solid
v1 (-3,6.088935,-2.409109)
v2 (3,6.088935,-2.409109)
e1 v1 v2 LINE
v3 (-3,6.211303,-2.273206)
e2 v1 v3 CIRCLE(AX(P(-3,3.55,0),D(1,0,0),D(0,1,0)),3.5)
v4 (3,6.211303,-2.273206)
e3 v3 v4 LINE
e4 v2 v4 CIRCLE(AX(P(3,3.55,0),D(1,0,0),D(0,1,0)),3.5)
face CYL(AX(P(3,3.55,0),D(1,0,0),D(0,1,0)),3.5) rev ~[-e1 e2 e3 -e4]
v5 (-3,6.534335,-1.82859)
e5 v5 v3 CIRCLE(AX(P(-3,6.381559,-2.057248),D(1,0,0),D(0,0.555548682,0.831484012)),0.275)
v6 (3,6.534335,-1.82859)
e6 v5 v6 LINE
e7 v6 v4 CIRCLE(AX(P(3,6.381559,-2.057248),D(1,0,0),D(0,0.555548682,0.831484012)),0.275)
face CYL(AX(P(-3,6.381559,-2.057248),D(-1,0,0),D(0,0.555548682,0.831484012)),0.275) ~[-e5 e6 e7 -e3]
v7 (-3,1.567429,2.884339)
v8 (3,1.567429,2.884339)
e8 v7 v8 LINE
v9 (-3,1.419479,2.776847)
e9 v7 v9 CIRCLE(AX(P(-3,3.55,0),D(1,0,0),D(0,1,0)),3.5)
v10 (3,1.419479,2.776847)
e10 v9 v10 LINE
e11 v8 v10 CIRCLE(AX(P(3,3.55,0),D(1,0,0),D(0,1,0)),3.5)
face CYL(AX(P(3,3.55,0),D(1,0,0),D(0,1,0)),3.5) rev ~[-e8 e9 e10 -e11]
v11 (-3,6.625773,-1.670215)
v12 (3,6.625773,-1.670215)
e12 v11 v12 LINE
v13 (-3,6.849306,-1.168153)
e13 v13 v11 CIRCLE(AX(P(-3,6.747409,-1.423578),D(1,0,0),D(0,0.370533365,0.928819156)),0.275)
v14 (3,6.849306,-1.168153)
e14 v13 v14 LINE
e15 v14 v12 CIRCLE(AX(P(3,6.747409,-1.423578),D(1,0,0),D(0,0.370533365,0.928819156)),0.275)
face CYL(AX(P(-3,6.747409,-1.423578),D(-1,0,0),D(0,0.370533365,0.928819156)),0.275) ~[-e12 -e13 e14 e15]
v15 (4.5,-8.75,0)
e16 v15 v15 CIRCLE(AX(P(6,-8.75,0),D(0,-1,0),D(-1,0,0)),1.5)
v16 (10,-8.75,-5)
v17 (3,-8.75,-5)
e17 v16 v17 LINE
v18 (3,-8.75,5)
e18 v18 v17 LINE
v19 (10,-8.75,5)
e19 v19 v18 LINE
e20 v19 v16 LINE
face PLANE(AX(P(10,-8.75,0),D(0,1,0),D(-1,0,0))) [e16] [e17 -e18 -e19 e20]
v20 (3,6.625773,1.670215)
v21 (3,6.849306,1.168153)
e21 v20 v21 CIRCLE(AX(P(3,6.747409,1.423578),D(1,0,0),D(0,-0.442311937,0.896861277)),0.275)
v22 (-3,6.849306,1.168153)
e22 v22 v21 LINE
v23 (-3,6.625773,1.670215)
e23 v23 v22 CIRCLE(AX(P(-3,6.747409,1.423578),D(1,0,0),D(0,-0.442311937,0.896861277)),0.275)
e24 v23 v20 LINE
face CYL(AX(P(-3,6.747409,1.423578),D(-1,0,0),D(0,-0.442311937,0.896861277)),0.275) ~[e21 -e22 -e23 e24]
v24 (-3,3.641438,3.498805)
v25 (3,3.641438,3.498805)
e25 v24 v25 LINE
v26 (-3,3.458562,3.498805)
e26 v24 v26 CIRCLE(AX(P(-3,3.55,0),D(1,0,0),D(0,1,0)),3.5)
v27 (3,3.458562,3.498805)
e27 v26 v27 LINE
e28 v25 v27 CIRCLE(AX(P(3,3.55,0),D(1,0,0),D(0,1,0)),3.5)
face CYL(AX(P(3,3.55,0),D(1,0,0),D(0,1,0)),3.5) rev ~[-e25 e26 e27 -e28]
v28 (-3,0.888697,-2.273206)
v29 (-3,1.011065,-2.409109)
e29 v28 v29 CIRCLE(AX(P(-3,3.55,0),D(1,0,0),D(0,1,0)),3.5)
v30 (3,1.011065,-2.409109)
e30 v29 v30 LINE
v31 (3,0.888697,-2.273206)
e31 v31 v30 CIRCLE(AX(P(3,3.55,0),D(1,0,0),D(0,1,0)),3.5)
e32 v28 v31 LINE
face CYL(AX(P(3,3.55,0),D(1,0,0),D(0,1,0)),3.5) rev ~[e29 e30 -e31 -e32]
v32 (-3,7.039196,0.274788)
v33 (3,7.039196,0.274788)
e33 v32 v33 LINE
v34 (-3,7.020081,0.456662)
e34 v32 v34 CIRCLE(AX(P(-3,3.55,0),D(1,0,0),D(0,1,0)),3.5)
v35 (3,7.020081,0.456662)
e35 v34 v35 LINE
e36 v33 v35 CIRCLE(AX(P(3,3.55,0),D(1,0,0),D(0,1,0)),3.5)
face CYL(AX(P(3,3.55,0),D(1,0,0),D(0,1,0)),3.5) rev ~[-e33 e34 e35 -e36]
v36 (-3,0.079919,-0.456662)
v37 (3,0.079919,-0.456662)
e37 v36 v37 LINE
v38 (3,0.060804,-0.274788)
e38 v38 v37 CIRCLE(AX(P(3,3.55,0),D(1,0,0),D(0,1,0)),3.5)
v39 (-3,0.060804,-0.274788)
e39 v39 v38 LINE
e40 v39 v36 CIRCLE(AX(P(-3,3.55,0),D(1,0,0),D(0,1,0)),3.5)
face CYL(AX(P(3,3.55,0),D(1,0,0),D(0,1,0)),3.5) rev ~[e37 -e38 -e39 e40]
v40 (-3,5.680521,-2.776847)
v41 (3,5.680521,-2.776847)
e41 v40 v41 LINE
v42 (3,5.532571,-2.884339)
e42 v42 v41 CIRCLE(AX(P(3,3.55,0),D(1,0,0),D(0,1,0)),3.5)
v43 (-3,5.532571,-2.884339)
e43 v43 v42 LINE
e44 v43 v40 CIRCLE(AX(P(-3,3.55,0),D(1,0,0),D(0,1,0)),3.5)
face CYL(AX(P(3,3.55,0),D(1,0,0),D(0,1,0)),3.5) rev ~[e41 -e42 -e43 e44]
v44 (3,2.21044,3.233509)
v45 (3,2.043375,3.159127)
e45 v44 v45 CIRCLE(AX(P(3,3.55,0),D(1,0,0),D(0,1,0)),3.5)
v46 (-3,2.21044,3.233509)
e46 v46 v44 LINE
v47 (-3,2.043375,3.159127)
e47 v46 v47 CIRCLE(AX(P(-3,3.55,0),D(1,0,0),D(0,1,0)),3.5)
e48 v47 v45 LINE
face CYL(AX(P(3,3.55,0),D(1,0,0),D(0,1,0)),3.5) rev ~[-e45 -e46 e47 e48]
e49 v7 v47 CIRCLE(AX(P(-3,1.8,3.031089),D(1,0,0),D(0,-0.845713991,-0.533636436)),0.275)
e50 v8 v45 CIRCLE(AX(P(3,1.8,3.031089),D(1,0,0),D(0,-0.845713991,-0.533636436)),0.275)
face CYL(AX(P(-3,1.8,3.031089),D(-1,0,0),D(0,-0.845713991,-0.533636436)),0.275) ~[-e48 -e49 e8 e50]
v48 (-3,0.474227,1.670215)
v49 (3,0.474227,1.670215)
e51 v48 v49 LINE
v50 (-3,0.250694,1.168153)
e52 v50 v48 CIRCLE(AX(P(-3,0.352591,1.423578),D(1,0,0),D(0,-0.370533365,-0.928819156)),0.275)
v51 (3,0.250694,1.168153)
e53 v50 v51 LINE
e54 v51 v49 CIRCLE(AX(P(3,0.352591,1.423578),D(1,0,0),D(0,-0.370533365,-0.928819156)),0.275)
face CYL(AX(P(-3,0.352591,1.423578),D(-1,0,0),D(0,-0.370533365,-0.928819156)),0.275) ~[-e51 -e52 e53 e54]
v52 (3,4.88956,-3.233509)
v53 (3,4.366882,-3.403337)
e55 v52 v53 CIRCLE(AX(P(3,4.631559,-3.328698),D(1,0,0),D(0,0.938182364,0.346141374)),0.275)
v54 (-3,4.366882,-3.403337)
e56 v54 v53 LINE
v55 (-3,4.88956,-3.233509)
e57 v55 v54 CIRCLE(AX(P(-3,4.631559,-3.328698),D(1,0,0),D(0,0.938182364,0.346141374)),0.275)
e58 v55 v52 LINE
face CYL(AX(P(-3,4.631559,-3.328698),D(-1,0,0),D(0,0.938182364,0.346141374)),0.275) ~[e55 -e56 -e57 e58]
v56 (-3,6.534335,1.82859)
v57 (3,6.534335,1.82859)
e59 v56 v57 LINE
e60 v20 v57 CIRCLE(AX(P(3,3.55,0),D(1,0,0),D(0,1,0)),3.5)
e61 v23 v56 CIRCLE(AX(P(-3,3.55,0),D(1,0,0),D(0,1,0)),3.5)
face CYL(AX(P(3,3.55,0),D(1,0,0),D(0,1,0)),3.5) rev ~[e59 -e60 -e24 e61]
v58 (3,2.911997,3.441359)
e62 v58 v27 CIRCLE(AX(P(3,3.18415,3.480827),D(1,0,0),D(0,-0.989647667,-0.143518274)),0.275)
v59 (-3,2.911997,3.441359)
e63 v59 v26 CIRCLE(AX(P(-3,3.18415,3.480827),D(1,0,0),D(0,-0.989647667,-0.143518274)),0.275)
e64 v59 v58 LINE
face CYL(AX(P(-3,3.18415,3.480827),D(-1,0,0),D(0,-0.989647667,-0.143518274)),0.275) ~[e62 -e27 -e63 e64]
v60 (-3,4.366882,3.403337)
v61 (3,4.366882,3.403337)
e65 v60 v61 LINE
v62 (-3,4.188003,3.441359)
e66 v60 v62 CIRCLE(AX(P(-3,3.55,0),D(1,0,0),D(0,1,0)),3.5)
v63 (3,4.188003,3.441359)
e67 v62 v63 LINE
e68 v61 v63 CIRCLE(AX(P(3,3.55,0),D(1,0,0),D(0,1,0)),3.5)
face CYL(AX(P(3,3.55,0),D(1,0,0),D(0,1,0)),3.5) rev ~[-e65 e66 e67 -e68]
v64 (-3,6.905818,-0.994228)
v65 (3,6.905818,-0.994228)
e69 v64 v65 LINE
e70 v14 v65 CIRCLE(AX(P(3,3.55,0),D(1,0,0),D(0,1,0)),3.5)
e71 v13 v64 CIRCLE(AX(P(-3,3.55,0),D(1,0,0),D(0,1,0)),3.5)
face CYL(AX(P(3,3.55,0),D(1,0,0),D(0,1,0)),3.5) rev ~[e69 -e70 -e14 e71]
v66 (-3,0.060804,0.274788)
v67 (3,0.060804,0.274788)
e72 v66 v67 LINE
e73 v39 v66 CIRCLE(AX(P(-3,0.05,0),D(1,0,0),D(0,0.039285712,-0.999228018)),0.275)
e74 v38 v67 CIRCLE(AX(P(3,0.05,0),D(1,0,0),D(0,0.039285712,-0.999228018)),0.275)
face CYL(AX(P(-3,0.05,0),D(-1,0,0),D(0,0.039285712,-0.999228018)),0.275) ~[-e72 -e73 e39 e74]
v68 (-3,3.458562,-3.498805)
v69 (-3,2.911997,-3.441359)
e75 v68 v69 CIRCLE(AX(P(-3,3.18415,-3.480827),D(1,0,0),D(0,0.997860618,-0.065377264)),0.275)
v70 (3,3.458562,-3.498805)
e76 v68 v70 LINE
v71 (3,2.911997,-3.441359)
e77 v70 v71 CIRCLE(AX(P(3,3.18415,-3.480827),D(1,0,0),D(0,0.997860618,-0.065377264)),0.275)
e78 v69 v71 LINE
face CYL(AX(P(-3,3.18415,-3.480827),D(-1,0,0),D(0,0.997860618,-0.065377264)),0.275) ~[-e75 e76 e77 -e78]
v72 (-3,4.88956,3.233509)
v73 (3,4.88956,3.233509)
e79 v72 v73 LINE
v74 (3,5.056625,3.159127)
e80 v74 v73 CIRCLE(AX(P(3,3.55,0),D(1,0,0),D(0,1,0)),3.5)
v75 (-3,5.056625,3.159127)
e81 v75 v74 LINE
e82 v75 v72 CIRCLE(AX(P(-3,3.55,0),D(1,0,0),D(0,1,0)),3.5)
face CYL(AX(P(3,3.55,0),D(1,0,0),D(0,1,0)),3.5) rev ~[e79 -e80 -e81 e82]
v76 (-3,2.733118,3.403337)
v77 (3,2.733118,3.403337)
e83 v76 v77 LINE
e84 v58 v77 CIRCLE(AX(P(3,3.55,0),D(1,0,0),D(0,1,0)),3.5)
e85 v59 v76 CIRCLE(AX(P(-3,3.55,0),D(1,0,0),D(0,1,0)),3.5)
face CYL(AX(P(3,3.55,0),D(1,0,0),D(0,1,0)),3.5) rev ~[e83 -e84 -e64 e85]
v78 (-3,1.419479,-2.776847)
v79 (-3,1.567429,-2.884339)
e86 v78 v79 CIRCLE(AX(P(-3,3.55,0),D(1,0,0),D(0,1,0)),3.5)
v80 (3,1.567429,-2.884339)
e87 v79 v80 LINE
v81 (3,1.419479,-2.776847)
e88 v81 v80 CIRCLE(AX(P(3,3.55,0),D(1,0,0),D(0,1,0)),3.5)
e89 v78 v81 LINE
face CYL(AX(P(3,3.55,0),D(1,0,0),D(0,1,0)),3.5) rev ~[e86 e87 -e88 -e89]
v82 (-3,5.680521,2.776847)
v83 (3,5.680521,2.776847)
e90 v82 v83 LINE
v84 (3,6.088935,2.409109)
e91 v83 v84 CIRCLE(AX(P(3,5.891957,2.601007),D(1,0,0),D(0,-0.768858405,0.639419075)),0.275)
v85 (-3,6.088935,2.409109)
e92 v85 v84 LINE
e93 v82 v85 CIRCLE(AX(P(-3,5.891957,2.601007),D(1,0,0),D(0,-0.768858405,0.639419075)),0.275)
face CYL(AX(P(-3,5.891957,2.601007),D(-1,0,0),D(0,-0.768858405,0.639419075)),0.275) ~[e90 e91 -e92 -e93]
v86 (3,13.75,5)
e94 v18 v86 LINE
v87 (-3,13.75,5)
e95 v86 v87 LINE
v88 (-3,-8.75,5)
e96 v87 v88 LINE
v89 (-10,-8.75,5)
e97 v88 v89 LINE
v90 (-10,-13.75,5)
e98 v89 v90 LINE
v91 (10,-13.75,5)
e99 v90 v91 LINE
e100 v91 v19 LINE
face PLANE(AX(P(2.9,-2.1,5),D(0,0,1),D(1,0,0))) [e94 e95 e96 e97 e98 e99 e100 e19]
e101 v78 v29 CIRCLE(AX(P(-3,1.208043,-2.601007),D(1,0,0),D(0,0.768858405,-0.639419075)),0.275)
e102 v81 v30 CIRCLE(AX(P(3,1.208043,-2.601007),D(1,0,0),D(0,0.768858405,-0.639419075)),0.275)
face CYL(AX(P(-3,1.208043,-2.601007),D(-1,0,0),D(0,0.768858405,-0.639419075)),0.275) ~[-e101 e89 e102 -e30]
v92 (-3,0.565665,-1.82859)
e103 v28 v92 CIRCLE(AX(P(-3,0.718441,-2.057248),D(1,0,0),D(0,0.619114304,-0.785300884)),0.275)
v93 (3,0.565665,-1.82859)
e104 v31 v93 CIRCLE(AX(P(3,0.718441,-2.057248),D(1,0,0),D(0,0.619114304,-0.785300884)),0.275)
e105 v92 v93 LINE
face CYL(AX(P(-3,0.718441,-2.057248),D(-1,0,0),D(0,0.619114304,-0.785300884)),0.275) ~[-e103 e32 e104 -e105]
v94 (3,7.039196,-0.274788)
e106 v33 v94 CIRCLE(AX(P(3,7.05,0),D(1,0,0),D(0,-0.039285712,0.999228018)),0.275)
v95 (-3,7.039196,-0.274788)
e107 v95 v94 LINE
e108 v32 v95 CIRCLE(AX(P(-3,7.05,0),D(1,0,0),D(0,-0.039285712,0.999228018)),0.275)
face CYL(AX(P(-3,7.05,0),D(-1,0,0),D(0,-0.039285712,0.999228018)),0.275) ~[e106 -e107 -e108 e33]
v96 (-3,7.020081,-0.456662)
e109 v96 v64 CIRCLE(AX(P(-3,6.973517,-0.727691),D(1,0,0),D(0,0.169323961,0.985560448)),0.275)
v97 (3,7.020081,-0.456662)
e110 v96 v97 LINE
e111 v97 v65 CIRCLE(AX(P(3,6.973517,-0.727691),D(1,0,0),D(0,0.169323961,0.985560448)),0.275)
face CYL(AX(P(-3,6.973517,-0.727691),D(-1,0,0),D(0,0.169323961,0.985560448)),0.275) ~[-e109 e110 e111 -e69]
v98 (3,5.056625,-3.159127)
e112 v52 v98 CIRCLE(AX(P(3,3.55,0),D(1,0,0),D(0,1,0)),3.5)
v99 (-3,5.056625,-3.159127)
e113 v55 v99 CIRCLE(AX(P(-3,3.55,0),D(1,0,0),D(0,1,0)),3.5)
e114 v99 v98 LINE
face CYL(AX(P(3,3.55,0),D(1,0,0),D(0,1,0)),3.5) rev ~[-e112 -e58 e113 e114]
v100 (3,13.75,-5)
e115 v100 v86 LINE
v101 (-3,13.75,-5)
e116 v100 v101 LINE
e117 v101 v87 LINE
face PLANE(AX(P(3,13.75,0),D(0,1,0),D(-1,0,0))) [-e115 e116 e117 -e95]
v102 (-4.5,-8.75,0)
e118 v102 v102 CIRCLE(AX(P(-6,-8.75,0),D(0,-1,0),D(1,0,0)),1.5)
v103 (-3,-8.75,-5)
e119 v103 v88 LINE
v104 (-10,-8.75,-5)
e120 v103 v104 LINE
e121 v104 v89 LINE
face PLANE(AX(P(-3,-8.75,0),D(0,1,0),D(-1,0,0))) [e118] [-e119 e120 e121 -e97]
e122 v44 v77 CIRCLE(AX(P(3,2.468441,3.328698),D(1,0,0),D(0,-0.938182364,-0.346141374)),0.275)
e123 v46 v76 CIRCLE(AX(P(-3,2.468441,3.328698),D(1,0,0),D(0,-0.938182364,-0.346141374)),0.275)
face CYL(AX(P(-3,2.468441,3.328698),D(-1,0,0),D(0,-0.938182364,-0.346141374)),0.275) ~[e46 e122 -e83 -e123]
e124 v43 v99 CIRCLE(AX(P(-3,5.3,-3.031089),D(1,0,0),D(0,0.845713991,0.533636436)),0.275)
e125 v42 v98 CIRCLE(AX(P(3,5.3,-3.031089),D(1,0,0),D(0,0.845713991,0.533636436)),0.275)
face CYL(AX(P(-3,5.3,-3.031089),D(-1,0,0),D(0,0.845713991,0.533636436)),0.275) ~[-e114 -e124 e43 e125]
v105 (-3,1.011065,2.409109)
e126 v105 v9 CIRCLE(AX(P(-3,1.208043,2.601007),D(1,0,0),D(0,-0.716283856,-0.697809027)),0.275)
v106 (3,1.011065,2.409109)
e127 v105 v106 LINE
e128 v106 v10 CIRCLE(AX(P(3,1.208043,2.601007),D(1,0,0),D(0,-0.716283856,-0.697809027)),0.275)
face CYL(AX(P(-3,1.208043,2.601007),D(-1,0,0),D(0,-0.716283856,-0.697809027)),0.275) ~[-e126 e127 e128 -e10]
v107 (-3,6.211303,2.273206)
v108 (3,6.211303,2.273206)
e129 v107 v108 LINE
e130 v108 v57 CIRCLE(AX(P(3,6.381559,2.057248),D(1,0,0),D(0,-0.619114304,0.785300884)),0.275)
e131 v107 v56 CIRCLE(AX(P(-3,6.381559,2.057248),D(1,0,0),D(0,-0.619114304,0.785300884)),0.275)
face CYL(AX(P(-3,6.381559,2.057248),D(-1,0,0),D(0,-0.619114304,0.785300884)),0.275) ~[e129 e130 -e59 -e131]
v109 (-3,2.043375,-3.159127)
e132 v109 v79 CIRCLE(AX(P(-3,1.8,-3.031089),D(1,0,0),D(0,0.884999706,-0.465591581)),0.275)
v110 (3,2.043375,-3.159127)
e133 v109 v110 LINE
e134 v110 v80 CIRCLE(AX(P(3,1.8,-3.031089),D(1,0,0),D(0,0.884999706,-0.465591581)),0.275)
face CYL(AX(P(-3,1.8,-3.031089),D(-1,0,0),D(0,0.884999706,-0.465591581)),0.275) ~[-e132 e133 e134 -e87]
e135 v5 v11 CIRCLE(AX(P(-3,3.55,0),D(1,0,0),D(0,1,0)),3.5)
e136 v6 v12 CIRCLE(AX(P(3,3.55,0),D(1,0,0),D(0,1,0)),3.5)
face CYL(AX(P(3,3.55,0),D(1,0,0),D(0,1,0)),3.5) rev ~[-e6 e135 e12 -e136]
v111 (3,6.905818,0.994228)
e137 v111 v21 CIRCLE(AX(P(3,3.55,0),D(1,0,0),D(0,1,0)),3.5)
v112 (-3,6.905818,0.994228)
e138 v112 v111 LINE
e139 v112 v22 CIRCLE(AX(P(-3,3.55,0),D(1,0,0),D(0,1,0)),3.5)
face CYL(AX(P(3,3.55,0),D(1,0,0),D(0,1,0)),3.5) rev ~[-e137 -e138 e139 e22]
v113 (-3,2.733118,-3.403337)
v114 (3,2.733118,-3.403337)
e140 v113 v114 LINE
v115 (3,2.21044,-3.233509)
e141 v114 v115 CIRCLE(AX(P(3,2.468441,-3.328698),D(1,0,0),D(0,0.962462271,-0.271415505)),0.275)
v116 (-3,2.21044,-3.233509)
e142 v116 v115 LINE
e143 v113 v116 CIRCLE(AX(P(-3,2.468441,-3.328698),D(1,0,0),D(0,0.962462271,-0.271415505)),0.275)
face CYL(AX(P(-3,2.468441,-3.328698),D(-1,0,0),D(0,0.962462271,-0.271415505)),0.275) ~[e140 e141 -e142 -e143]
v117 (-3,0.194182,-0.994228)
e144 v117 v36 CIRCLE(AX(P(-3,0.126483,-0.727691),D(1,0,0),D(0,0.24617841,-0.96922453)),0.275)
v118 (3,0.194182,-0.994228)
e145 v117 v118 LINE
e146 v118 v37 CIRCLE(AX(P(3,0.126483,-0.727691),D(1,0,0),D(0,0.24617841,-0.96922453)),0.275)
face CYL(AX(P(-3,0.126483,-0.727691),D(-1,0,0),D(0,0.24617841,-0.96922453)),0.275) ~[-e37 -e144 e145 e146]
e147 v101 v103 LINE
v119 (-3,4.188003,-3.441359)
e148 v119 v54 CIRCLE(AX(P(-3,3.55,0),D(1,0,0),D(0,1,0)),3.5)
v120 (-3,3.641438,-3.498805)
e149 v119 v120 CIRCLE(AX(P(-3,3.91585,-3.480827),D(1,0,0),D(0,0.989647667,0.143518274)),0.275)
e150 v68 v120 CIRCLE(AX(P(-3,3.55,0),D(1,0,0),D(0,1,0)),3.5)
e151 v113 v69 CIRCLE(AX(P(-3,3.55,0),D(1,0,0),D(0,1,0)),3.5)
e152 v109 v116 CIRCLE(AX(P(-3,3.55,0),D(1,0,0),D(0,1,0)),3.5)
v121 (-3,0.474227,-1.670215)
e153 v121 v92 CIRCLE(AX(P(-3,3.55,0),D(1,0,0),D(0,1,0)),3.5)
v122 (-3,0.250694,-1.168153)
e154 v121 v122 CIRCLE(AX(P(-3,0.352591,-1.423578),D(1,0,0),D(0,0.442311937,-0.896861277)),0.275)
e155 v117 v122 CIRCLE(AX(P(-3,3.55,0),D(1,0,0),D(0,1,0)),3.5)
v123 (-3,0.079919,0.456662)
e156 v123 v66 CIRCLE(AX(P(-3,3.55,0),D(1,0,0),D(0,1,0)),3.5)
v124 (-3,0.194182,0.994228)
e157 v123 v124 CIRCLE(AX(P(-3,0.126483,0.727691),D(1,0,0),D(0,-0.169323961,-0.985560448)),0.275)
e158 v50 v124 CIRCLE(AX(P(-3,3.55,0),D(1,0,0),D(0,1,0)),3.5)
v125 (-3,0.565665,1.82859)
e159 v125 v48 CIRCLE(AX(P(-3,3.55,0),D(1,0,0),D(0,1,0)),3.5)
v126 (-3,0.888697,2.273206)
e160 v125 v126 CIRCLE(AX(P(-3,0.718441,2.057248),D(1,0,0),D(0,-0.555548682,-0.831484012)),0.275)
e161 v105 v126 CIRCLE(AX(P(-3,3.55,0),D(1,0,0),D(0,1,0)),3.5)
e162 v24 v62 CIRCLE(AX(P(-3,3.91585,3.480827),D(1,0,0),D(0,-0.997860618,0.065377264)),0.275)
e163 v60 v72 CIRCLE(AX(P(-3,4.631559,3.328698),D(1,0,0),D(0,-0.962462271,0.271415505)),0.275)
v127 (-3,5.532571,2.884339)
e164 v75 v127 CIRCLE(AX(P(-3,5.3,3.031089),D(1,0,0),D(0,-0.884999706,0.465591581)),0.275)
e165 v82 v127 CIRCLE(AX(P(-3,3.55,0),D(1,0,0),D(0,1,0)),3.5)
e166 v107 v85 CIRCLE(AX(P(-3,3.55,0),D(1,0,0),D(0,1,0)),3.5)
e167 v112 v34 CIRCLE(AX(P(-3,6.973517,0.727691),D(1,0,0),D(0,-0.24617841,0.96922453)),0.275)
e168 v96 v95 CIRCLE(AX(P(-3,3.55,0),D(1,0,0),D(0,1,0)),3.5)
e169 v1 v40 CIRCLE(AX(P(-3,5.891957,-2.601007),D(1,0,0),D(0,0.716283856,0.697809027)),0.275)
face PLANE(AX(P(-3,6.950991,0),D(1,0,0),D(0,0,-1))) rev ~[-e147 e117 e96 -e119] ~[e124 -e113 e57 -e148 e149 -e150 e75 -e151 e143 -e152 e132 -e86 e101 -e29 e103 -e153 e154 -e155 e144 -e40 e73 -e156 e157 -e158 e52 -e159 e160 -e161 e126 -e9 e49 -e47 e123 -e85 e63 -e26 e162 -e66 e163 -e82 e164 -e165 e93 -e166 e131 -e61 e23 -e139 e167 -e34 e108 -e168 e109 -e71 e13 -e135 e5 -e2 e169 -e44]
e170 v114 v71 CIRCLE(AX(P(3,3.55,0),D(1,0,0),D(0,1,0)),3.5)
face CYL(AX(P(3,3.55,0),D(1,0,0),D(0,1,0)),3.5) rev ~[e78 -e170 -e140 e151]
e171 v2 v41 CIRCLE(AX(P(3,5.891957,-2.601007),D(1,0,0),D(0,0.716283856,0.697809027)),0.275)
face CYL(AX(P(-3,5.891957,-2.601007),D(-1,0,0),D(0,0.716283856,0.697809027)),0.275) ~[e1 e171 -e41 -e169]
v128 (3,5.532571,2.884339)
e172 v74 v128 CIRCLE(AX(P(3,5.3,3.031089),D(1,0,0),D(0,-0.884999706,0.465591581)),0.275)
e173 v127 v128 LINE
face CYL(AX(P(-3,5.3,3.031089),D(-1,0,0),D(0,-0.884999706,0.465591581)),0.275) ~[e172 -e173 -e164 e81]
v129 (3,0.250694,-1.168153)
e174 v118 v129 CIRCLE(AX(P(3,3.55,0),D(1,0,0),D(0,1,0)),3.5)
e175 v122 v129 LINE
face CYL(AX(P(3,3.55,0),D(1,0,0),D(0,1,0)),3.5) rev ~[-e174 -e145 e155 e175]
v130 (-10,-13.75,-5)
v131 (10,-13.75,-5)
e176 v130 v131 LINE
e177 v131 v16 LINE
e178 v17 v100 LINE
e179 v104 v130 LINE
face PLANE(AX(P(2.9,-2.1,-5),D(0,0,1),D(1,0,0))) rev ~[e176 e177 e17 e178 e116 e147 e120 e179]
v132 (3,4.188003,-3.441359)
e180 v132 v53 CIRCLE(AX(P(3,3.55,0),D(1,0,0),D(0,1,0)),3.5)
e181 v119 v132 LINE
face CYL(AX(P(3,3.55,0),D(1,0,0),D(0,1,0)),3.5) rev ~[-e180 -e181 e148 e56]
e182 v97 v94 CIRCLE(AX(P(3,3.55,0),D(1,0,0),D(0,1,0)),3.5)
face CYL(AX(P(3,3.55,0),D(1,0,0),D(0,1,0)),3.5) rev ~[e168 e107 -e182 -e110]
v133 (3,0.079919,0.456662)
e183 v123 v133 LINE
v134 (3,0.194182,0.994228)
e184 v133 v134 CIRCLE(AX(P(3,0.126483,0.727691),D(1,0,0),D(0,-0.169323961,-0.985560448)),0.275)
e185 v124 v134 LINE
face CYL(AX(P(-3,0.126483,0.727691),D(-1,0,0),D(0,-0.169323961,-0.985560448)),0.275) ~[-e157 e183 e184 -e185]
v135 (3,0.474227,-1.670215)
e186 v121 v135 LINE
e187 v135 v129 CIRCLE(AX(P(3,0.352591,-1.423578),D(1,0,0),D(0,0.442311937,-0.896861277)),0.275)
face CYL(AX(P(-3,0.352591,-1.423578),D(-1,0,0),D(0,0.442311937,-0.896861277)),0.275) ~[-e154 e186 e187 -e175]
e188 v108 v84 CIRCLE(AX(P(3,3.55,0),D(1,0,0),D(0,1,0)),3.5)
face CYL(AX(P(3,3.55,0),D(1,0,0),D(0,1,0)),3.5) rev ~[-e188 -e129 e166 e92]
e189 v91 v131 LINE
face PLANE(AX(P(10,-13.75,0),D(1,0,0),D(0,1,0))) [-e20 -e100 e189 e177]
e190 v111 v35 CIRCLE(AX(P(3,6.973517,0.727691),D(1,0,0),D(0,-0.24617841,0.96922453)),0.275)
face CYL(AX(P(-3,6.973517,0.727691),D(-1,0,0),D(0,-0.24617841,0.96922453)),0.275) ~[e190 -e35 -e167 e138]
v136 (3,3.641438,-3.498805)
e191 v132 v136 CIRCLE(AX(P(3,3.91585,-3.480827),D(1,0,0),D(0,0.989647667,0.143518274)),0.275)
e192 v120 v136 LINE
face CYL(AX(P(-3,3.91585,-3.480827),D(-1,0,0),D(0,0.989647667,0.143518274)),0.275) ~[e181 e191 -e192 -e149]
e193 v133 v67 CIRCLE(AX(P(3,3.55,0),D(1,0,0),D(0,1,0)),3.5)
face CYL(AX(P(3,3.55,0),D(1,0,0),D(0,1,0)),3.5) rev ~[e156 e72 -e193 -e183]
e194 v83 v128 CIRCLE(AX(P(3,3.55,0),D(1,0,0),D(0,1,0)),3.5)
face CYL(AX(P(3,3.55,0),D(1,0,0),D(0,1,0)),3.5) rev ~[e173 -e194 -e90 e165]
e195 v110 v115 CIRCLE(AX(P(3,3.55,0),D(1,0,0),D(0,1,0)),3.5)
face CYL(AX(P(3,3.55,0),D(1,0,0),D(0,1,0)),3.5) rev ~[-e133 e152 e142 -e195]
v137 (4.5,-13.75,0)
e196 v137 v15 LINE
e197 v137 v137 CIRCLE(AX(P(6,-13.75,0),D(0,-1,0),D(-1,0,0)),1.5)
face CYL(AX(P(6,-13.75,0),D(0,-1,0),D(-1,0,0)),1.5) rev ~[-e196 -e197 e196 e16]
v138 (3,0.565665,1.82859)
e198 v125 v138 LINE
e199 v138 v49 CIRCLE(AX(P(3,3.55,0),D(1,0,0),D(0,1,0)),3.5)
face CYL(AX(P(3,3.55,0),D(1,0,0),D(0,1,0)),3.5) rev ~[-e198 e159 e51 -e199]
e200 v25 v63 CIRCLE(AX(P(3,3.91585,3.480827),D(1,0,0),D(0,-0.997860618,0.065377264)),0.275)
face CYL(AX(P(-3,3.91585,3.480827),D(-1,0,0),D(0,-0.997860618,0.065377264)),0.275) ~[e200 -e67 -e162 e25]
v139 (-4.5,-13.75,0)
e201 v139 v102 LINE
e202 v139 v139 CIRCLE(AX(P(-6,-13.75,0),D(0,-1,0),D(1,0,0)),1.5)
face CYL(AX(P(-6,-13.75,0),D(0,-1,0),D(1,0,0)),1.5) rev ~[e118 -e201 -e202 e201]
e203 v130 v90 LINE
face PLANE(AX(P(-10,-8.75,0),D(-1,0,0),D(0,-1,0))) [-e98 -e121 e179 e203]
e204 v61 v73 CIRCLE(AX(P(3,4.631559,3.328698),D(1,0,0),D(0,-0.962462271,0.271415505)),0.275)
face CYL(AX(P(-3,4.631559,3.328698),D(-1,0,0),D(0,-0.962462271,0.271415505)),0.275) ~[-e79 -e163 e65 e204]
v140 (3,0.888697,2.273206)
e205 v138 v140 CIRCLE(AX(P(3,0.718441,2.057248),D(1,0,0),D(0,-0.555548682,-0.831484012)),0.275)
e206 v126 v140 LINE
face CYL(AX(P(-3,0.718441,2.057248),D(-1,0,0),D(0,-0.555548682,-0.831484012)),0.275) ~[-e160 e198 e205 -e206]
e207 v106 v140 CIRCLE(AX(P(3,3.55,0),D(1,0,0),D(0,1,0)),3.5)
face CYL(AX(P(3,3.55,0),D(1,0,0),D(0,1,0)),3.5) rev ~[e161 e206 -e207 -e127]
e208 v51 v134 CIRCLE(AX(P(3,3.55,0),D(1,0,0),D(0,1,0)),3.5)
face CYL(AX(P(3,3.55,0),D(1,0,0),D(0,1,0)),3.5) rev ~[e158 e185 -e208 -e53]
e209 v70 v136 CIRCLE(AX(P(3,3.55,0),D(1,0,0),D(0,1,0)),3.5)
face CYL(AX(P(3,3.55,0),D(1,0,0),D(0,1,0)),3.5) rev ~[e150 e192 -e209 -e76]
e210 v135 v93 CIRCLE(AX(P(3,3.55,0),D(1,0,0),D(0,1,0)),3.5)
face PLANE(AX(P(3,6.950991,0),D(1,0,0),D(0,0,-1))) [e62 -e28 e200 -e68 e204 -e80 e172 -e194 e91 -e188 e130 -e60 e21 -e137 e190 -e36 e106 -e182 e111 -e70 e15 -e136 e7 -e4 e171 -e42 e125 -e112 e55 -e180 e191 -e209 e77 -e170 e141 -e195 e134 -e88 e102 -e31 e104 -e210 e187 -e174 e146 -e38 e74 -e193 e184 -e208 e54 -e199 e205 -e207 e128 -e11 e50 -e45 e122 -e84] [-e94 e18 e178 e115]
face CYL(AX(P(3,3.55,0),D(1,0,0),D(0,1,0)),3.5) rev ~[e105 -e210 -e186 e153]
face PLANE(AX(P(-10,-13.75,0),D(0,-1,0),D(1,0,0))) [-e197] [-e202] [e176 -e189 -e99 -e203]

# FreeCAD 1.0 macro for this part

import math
import FreeCAD as App
import Part
import Sketcher


def add_polygon(sketch, points):
    """Adds a closed chain of lines whose ends are joined by coincident constraints."""
    first, n = sketch.GeometryCount, len(points)
    for a, b in zip(points, points[1:] + points[:1]):
        sketch.addGeometry(Part.LineSegment(App.Vector(*a, 0), App.Vector(*b, 0)), False)
    for i in range(n):
        sketch.addConstraint(Sketcher.Constraint("Coincident", first + i, 2, first + (i + 1) % n, 1))

doc = App.newDocument("Part")
body = doc.addObject("PartDesign::Body", "Body")

# Sketch on XY plane
sketch1 = doc.addObject("Sketcher::SketchObject", "Sketch")
body.addObject(sketch1)
sketch1.AttachmentSupport = (doc.XY_Plane, [""])
sketch1.MapMode = "FlatFace"
add_polygon(sketch1, [(3, -8.75), (3, 13.75), (-3, 13.75), (-3, -8.75), (-10, -8.75), (-10, -13.75), (10, -13.75), (10, -8.75)])  # lines 0-7
sketch1.addConstraint(Sketcher.Constraint("Vertical", 0))
sketch1.addConstraint(Sketcher.Constraint("Horizontal", 1))
sketch1.addConstraint(Sketcher.Constraint("Vertical", 2))
sketch1.addConstraint(Sketcher.Constraint("Horizontal", 3))
sketch1.addConstraint(Sketcher.Constraint("Vertical", 4))
sketch1.addConstraint(Sketcher.Constraint("Horizontal", 5))
sketch1.addConstraint(Sketcher.Constraint("Vertical", 6))
sketch1.addConstraint(Sketcher.Constraint("Horizontal", 7))
sketch1.addConstraint(Sketcher.Constraint("Symmetric", 3, 2, 6, 2, -2))
sketch1.addConstraint(Sketcher.Constraint("Equal", 3, 7))
sketch1.addConstraint(Sketcher.Constraint("DistanceX", 1, 2, 1, 1, 6.0))
sketch1.addConstraint(Sketcher.Constraint("DistanceX", 3, 2, 3, 1, 7.0))
sketch1.addConstraint(Sketcher.Constraint("DistanceY", 4, 2, 4, 1, 5.0))
sketch1.addConstraint(Sketcher.Constraint("DistanceY", 0, 1, 0, 2, 22.5))
sketch1.addConstraint(Sketcher.Constraint("DistanceY", -1, 1, 0, 2, 13.75))
pad1 = doc.addObject("PartDesign::Pad", "Pad")
body.addObject(pad1)
pad1.Profile = sketch1
pad1.Length = 10
pad1.Midplane = True

# Sketch on YZ plane
sketch2 = doc.addObject("Sketcher::SketchObject", "Sketch001")
body.addObject(sketch2)
sketch2.AttachmentSupport = (doc.YZ_Plane, [""])
sketch2.MapMode = "FlatFace"
sketch2.AttachmentOffset = App.Placement(App.Vector(0, 0, 3), App.Rotation())
sketch2.addGeometry(Part.Circle(App.Vector(3.55, 0, 0), App.Vector(0, 0, 1), 3.5), False)
sketch2.addConstraint(Sketcher.Constraint("PointOnObject", 0, 3, -1))
sketch2.addConstraint(Sketcher.Constraint("Diameter", 0, 7.0))
sketch2.addConstraint(Sketcher.Constraint("DistanceX", -1, 1, 0, 3, 3.55))
pocket1 = doc.addObject("PartDesign::Pocket", "Pocket")
body.addObject(pocket1)
pocket1.Profile = sketch2
pocket1.Length = 15

# Sketch on XZ plane
sketch3 = doc.addObject("Sketcher::SketchObject", "Sketch002")
body.addObject(sketch3)
sketch3.AttachmentSupport = (doc.XZ_Plane, [""])
sketch3.MapMode = "FlatFace"
sketch3.AttachmentOffset = App.Placement(App.Vector(0, 0, 13.75), App.Rotation())
sketch3.addGeometry(Part.Circle(App.Vector(-6, 0, 0), App.Vector(0, 0, 1), 1.5), False)
sketch3.addGeometry(Part.Circle(App.Vector(6, 0, 0), App.Vector(0, 0, 1), 1.5), False)
sketch3.addConstraint(Sketcher.Constraint("Equal", 0, 1))
sketch3.addConstraint(Sketcher.Constraint("Symmetric", 0, 3, 1, 3, -1, 1))
sketch3.addConstraint(Sketcher.Constraint("PointOnObject", 0, 3, -1))
sketch3.addConstraint(Sketcher.Constraint("Diameter", 0, 3.0))
sketch3.addConstraint(Sketcher.Constraint("DistanceX", 0, 3, -1, 1, 6.0))
pocket2 = doc.addObject("PartDesign::Pocket", "Pocket001")
body.addObject(pocket2)
pocket2.Profile = sketch3
pocket2.Length = 10

# Sketch on YZ plane
sketch4 = doc.addObject("Sketcher::SketchObject", "Sketch003")
body.addObject(sketch4)
sketch4.AttachmentSupport = (doc.YZ_Plane, [""])
sketch4.MapMode = "FlatFace"
sketch4.addGeometry(Part.ArcOfCircle(Part.Circle(App.Vector(3.55, 0, 0), App.Vector(0, 0, 1), 3.5), math.radians(-4.50297), math.radians(4.50297)), False)
sketch4.addGeometry(Part.ArcOfCircle(Part.Circle(App.Vector(7.05, 0, 0), App.Vector(0, 0, 1), 0.275), math.radians(92.251485), math.radians(267.748515)), False)
sketch4.addGeometry(Part.ArcOfCircle(Part.Circle(App.Vector(3.55, 0, 0), App.Vector(0, 0, 1), 3.5), math.radians(-16.50297), math.radians(-7.49703)), False)
sketch4.addGeometry(Part.ArcOfCircle(Part.Circle(App.Vector(6.973517, -0.727691, 0), App.Vector(0, 0, 1), 0.275), math.radians(80.251485), math.radians(255.748515)), False)
sketch4.addGeometry(Part.ArcOfCircle(Part.Circle(App.Vector(3.55, 0, 0), App.Vector(0, 0, 1), 3.5), math.radians(-28.50297), math.radians(-19.49703)), False)
sketch4.addGeometry(Part.ArcOfCircle(Part.Circle(App.Vector(6.747409, -1.423578, 0), App.Vector(0, 0, 1), 0.275), math.radians(68.251485), math.radians(243.748515)), False)
sketch4.addGeometry(Part.ArcOfCircle(Part.Circle(App.Vector(3.55, 0, 0), App.Vector(0, 0, 1), 3.5), math.radians(-40.50297), math.radians(-31.49703)), False)
sketch4.addGeometry(Part.ArcOfCircle(Part.Circle(App.Vector(6.381559, -2.057248, 0), App.Vector(0, 0, 1), 0.275), math.radians(56.251485), math.radians(231.748515)), False)
sketch4.addGeometry(Part.ArcOfCircle(Part.Circle(App.Vector(3.55, 0, 0), App.Vector(0, 0, 1), 3.5), math.radians(-52.50297), math.radians(-43.49703)), False)
sketch4.addGeometry(Part.ArcOfCircle(Part.Circle(App.Vector(5.891957, -2.601007, 0), App.Vector(0, 0, 1), 0.275), math.radians(44.251485), math.radians(219.748515)), False)
sketch4.addGeometry(Part.ArcOfCircle(Part.Circle(App.Vector(3.55, 0, 0), App.Vector(0, 0, 1), 3.5), math.radians(-64.50297), math.radians(-55.49703)), False)
sketch4.addGeometry(Part.ArcOfCircle(Part.Circle(App.Vector(5.3, -3.031089, 0), App.Vector(0, 0, 1), 0.275), math.radians(32.251485), math.radians(207.748515)), False)
sketch4.addGeometry(Part.ArcOfCircle(Part.Circle(App.Vector(3.55, 0, 0), App.Vector(0, 0, 1), 3.5), math.radians(-76.50297), math.radians(-67.49703)), False)
sketch4.addGeometry(Part.ArcOfCircle(Part.Circle(App.Vector(4.631559, -3.328698, 0), App.Vector(0, 0, 1), 0.275), math.radians(20.251485), math.radians(195.748515)), False)
sketch4.addGeometry(Part.ArcOfCircle(Part.Circle(App.Vector(3.55, 0, 0), App.Vector(0, 0, 1), 3.5), math.radians(-88.50297), math.radians(-79.49703)), False)
sketch4.addGeometry(Part.ArcOfCircle(Part.Circle(App.Vector(3.91585, -3.480827, 0), App.Vector(0, 0, 1), 0.275), math.radians(8.251485), math.radians(183.748515)), False)
sketch4.addGeometry(Part.ArcOfCircle(Part.Circle(App.Vector(3.55, 0, 0), App.Vector(0, 0, 1), 3.5), math.radians(-100.50297), math.radians(-91.49703)), False)
sketch4.addGeometry(Part.ArcOfCircle(Part.Circle(App.Vector(3.18415, -3.480827, 0), App.Vector(0, 0, 1), 0.275), math.radians(-3.748515), math.radians(171.748515)), False)
sketch4.addGeometry(Part.ArcOfCircle(Part.Circle(App.Vector(3.55, 0, 0), App.Vector(0, 0, 1), 3.5), math.radians(-112.50297), math.radians(-103.49703)), False)
sketch4.addGeometry(Part.ArcOfCircle(Part.Circle(App.Vector(2.468441, -3.328698, 0), App.Vector(0, 0, 1), 0.275), math.radians(-15.748515), math.radians(159.748515)), False)
sketch4.addGeometry(Part.ArcOfCircle(Part.Circle(App.Vector(3.55, 0, 0), App.Vector(0, 0, 1), 3.5), math.radians(-124.50297), math.radians(-115.49703)), False)
sketch4.addGeometry(Part.ArcOfCircle(Part.Circle(App.Vector(1.8, -3.031089, 0), App.Vector(0, 0, 1), 0.275), math.radians(-27.748515), math.radians(147.748515)), False)
sketch4.addGeometry(Part.ArcOfCircle(Part.Circle(App.Vector(3.55, 0, 0), App.Vector(0, 0, 1), 3.5), math.radians(-136.50297), math.radians(-127.49703)), False)
sketch4.addGeometry(Part.ArcOfCircle(Part.Circle(App.Vector(1.208043, -2.601007, 0), App.Vector(0, 0, 1), 0.275), math.radians(-39.748515), math.radians(135.748515)), False)
sketch4.addGeometry(Part.ArcOfCircle(Part.Circle(App.Vector(3.55, 0, 0), App.Vector(0, 0, 1), 3.5), math.radians(-148.50297), math.radians(-139.49703)), False)
sketch4.addGeometry(Part.ArcOfCircle(Part.Circle(App.Vector(0.718441, -2.057248, 0), App.Vector(0, 0, 1), 0.275), math.radians(-51.748515), math.radians(123.748515)), False)
sketch4.addGeometry(Part.ArcOfCircle(Part.Circle(App.Vector(3.55, 0, 0), App.Vector(0, 0, 1), 3.5), math.radians(-160.50297), math.radians(-151.49703)), False)
sketch4.addGeometry(Part.ArcOfCircle(Part.Circle(App.Vector(0.352591, -1.423578, 0), App.Vector(0, 0, 1), 0.275), math.radians(-63.748515), math.radians(111.748515)), False)
sketch4.addGeometry(Part.ArcOfCircle(Part.Circle(App.Vector(3.55, 0, 0), App.Vector(0, 0, 1), 3.5), math.radians(-172.50297), math.radians(-163.49703)), False)
sketch4.addGeometry(Part.ArcOfCircle(Part.Circle(App.Vector(0.126483, -0.727691, 0), App.Vector(0, 0, 1), 0.275), math.radians(-75.748515), math.radians(99.748515)), False)
sketch4.addGeometry(Part.ArcOfCircle(Part.Circle(App.Vector(3.55, 0, 0), App.Vector(0, 0, 1), 3.5), math.radians(175.49703), math.radians(184.50297)), False)
sketch4.addGeometry(Part.ArcOfCircle(Part.Circle(App.Vector(0.05, 0, 0), App.Vector(0, 0, 1), 0.275), math.radians(-87.748515), math.radians(87.748515)), False)
sketch4.addGeometry(Part.ArcOfCircle(Part.Circle(App.Vector(3.55, 0, 0), App.Vector(0, 0, 1), 3.5), math.radians(163.49703), math.radians(172.50297)), False)
sketch4.addGeometry(Part.ArcOfCircle(Part.Circle(App.Vector(0.126483, 0.727691, 0), App.Vector(0, 0, 1), 0.275), math.radians(-99.748515), math.radians(75.748515)), False)
sketch4.addGeometry(Part.ArcOfCircle(Part.Circle(App.Vector(3.55, 0, 0), App.Vector(0, 0, 1), 3.5), math.radians(151.49703), math.radians(160.50297)), False)
sketch4.addGeometry(Part.ArcOfCircle(Part.Circle(App.Vector(0.352591, 1.423578, 0), App.Vector(0, 0, 1), 0.275), math.radians(-111.748515), math.radians(63.748515)), False)
sketch4.addGeometry(Part.ArcOfCircle(Part.Circle(App.Vector(3.55, 0, 0), App.Vector(0, 0, 1), 3.5), math.radians(139.49703), math.radians(148.50297)), False)
sketch4.addGeometry(Part.ArcOfCircle(Part.Circle(App.Vector(0.718441, 2.057248, 0), App.Vector(0, 0, 1), 0.275), math.radians(-123.748515), math.radians(51.748515)), False)
sketch4.addGeometry(Part.ArcOfCircle(Part.Circle(App.Vector(3.55, 0, 0), App.Vector(0, 0, 1), 3.5), math.radians(127.49703), math.radians(136.50297)), False)
sketch4.addGeometry(Part.ArcOfCircle(Part.Circle(App.Vector(1.208043, 2.601007, 0), App.Vector(0, 0, 1), 0.275), math.radians(-135.748515), math.radians(39.748515)), False)
sketch4.addGeometry(Part.ArcOfCircle(Part.Circle(App.Vector(3.55, 0, 0), App.Vector(0, 0, 1), 3.5), math.radians(115.49703), math.radians(124.50297)), False)
sketch4.addGeometry(Part.ArcOfCircle(Part.Circle(App.Vector(1.8, 3.031089, 0), App.Vector(0, 0, 1), 0.275), math.radians(-147.748515), math.radians(27.748515)), False)
sketch4.addGeometry(Part.ArcOfCircle(Part.Circle(App.Vector(3.55, 0, 0), App.Vector(0, 0, 1), 3.5), math.radians(103.49703), math.radians(112.50297)), False)
sketch4.addGeometry(Part.ArcOfCircle(Part.Circle(App.Vector(2.468441, 3.328698, 0), App.Vector(0, 0, 1), 0.275), math.radians(-159.748515), math.radians(15.748515)), False)
sketch4.addGeometry(Part.ArcOfCircle(Part.Circle(App.Vector(3.55, 0, 0), App.Vector(0, 0, 1), 3.5), math.radians(91.49703), math.radians(100.50297)), False)
sketch4.addGeometry(Part.ArcOfCircle(Part.Circle(App.Vector(3.18415, 3.480827, 0), App.Vector(0, 0, 1), 0.275), math.radians(-171.748515), math.radians(3.748515)), False)
sketch4.addGeometry(Part.ArcOfCircle(Part.Circle(App.Vector(3.55, 0, 0), App.Vector(0, 0, 1), 3.5), math.radians(79.49703), math.radians(88.50297)), False)
sketch4.addGeometry(Part.ArcOfCircle(Part.Circle(App.Vector(3.91585, 3.480827, 0), App.Vector(0, 0, 1), 0.275), math.radians(176.251485), math.radians(351.748515)), False)
sketch4.addGeometry(Part.ArcOfCircle(Part.Circle(App.Vector(3.55, 0, 0), App.Vector(0, 0, 1), 3.5), math.radians(67.49703), math.radians(76.50297)), False)
sketch4.addGeometry(Part.ArcOfCircle(Part.Circle(App.Vector(4.631559, 3.328698, 0), App.Vector(0, 0, 1), 0.275), math.radians(164.251485), math.radians(339.748515)), False)
sketch4.addGeometry(Part.ArcOfCircle(Part.Circle(App.Vector(3.55, 0, 0), App.Vector(0, 0, 1), 3.5), math.radians(55.49703), math.radians(64.50297)), False)
sketch4.addGeometry(Part.ArcOfCircle(Part.Circle(App.Vector(5.3, 3.031089, 0), App.Vector(0, 0, 1), 0.275), math.radians(152.251485), math.radians(327.748515)), False)
sketch4.addGeometry(Part.ArcOfCircle(Part.Circle(App.Vector(3.55, 0, 0), App.Vector(0, 0, 1), 3.5), math.radians(43.49703), math.radians(52.50297)), False)
sketch4.addGeometry(Part.ArcOfCircle(Part.Circle(App.Vector(5.891957, 2.601007, 0), App.Vector(0, 0, 1), 0.275), math.radians(140.251485), math.radians(315.748515)), False)
sketch4.addGeometry(Part.ArcOfCircle(Part.Circle(App.Vector(3.55, 0, 0), App.Vector(0, 0, 1), 3.5), math.radians(31.49703), math.radians(40.50297)), False)
sketch4.addGeometry(Part.ArcOfCircle(Part.Circle(App.Vector(6.381559, 2.057248, 0), App.Vector(0, 0, 1), 0.275), math.radians(128.251485), math.radians(303.748515)), False)
sketch4.addGeometry(Part.ArcOfCircle(Part.Circle(App.Vector(3.55, 0, 0), App.Vector(0, 0, 1), 3.5), math.radians(19.49703), math.radians(28.50297)), False)
sketch4.addGeometry(Part.ArcOfCircle(Part.Circle(App.Vector(6.747409, 1.423578, 0), App.Vector(0, 0, 1), 0.275), math.radians(116.251485), math.radians(291.748515)), False)
sketch4.addGeometry(Part.ArcOfCircle(Part.Circle(App.Vector(3.55, 0, 0), App.Vector(0, 0, 1), 3.5), math.radians(7.49703), math.radians(16.50297)), False)
sketch4.addGeometry(Part.ArcOfCircle(Part.Circle(App.Vector(6.973517, 0.727691, 0), App.Vector(0, 0, 1), 0.275), math.radians(104.251485), math.radians(279.748515)), False)
sketch4.addConstraint(Sketcher.Constraint("Coincident", 0, 1, 1, 2))
sketch4.addConstraint(Sketcher.Constraint("Coincident", 1, 1, 0, 2))
sketch4.addConstraint(Sketcher.Constraint("Coincident", 2, 1, 3, 2))
sketch4.addConstraint(Sketcher.Constraint("Coincident", 3, 1, 2, 2))
sketch4.addConstraint(Sketcher.Constraint("Coincident", 4, 1, 5, 2))
sketch4.addConstraint(Sketcher.Constraint("Coincident", 5, 1, 4, 2))
sketch4.addConstraint(Sketcher.Constraint("Coincident", 6, 1, 7, 2))
sketch4.addConstraint(Sketcher.Constraint("Coincident", 7, 1, 6, 2))
sketch4.addConstraint(Sketcher.Constraint("Coincident", 8, 1, 9, 2))
sketch4.addConstraint(Sketcher.Constraint("Coincident", 9, 1, 8, 2))
sketch4.addConstraint(Sketcher.Constraint("Coincident", 10, 1, 11, 2))
sketch4.addConstraint(Sketcher.Constraint("Coincident", 11, 1, 10, 2))
sketch4.addConstraint(Sketcher.Constraint("Coincident", 12, 1, 13, 2))
sketch4.addConstraint(Sketcher.Constraint("Coincident", 13, 1, 12, 2))
sketch4.addConstraint(Sketcher.Constraint("Coincident", 14, 1, 15, 2))
sketch4.addConstraint(Sketcher.Constraint("Coincident", 15, 1, 14, 2))
sketch4.addConstraint(Sketcher.Constraint("Coincident", 16, 1, 17, 2))
sketch4.addConstraint(Sketcher.Constraint("Coincident", 17, 1, 16, 2))
sketch4.addConstraint(Sketcher.Constraint("Coincident", 18, 1, 19, 2))
sketch4.addConstraint(Sketcher.Constraint("Coincident", 19, 1, 18, 2))
sketch4.addConstraint(Sketcher.Constraint("Coincident", 20, 1, 21, 2))
sketch4.addConstraint(Sketcher.Constraint("Coincident", 21, 1, 20, 2))
sketch4.addConstraint(Sketcher.Constraint("Coincident", 22, 1, 23, 2))
sketch4.addConstraint(Sketcher.Constraint("Coincident", 23, 1, 22, 2))
sketch4.addConstraint(Sketcher.Constraint("Coincident", 24, 1, 25, 2))
sketch4.addConstraint(Sketcher.Constraint("Coincident", 25, 1, 24, 2))
sketch4.addConstraint(Sketcher.Constraint("Coincident", 26, 1, 27, 2))
sketch4.addConstraint(Sketcher.Constraint("Coincident", 27, 1, 26, 2))
sketch4.addConstraint(Sketcher.Constraint("Coincident", 28, 1, 29, 2))
sketch4.addConstraint(Sketcher.Constraint("Coincident", 29, 1, 28, 2))
sketch4.addConstraint(Sketcher.Constraint("Coincident", 30, 1, 31, 2))
sketch4.addConstraint(Sketcher.Constraint("Coincident", 31, 1, 30, 2))
sketch4.addConstraint(Sketcher.Constraint("Coincident", 32, 1, 33, 2))
sketch4.addConstraint(Sketcher.Constraint("Coincident", 33, 1, 32, 2))
sketch4.addConstraint(Sketcher.Constraint("Coincident", 34, 1, 35, 2))
sketch4.addConstraint(Sketcher.Constraint("Coincident", 35, 1, 34, 2))
sketch4.addConstraint(Sketcher.Constraint("Coincident", 36, 1, 37, 2))
sketch4.addConstraint(Sketcher.Constraint("Coincident", 37, 1, 36, 2))
sketch4.addConstraint(Sketcher.Constraint("Coincident", 38, 1, 39, 2))
sketch4.addConstraint(Sketcher.Constraint("Coincident", 39, 1, 38, 2))
sketch4.addConstraint(Sketcher.Constraint("Coincident", 40, 1, 41, 2))
sketch4.addConstraint(Sketcher.Constraint("Coincident", 41, 1, 40, 2))
sketch4.addConstraint(Sketcher.Constraint("Coincident", 42, 1, 43, 2))
sketch4.addConstraint(Sketcher.Constraint("Coincident", 43, 1, 42, 2))
sketch4.addConstraint(Sketcher.Constraint("Coincident", 44, 1, 45, 2))
sketch4.addConstraint(Sketcher.Constraint("Coincident", 45, 1, 44, 2))
sketch4.addConstraint(Sketcher.Constraint("Coincident", 46, 1, 47, 2))
sketch4.addConstraint(Sketcher.Constraint("Coincident", 47, 1, 46, 2))
sketch4.addConstraint(Sketcher.Constraint("Coincident", 48, 1, 49, 2))
sketch4.addConstraint(Sketcher.Constraint("Coincident", 49, 1, 48, 2))
sketch4.addConstraint(Sketcher.Constraint("Coincident", 50, 1, 51, 2))
sketch4.addConstraint(Sketcher.Constraint("Coincident", 51, 1, 50, 2))
sketch4.addConstraint(Sketcher.Constraint("Coincident", 52, 1, 53, 2))
sketch4.addConstraint(Sketcher.Constraint("Coincident", 53, 1, 52, 2))
sketch4.addConstraint(Sketcher.Constraint("Coincident", 54, 1, 55, 2))
sketch4.addConstraint(Sketcher.Constraint("Coincident", 55, 1, 54, 2))
sketch4.addConstraint(Sketcher.Constraint("Coincident", 56, 1, 57, 2))
sketch4.addConstraint(Sketcher.Constraint("Coincident", 57, 1, 56, 2))
sketch4.addConstraint(Sketcher.Constraint("Coincident", 58, 1, 59, 2))
sketch4.addConstraint(Sketcher.Constraint("Coincident", 59, 1, 58, 2))
sketch4.addConstraint(Sketcher.Constraint("Coincident", 2, 3, 0, 3))
sketch4.addConstraint(Sketcher.Constraint("Coincident", 4, 3, 0, 3))
sketch4.addConstraint(Sketcher.Constraint("Coincident", 6, 3, 0, 3))
sketch4.addConstraint(Sketcher.Constraint("Coincident", 8, 3, 0, 3))
sketch4.addConstraint(Sketcher.Constraint("Coincident", 10, 3, 0, 3))
sketch4.addConstraint(Sketcher.Constraint("Coincident", 12, 3, 0, 3))
sketch4.addConstraint(Sketcher.Constraint("Coincident", 14, 3, 0, 3))
sketch4.addConstraint(Sketcher.Constraint("Coincident", 16, 3, 0, 3))
sketch4.addConstraint(Sketcher.Constraint("Coincident", 18, 3, 0, 3))
sketch4.addConstraint(Sketcher.Constraint("Coincident", 20, 3, 0, 3))
sketch4.addConstraint(Sketcher.Constraint("Coincident", 22, 3, 0, 3))
sketch4.addConstraint(Sketcher.Constraint("Coincident", 24, 3, 0, 3))
sketch4.addConstraint(Sketcher.Constraint("Coincident", 26, 3, 0, 3))
sketch4.addConstraint(Sketcher.Constraint("Coincident", 28, 3, 0, 3))
sketch4.addConstraint(Sketcher.Constraint("Coincident", 30, 3, 0, 3))
sketch4.addConstraint(Sketcher.Constraint("Coincident", 32, 3, 0, 3))
sketch4.addConstraint(Sketcher.Constraint("Coincident", 34, 3, 0, 3))
sketch4.addConstraint(Sketcher.Constraint("Coincident", 36, 3, 0, 3))
sketch4.addConstraint(Sketcher.Constraint("Coincident", 38, 3, 0, 3))
sketch4.addConstraint(Sketcher.Constraint("Coincident", 40, 3, 0, 3))
sketch4.addConstraint(Sketcher.Constraint("Coincident", 42, 3, 0, 3))
sketch4.addConstraint(Sketcher.Constraint("Coincident", 44, 3, 0, 3))
sketch4.addConstraint(Sketcher.Constraint("Coincident", 46, 3, 0, 3))
sketch4.addConstraint(Sketcher.Constraint("Coincident", 48, 3, 0, 3))
sketch4.addConstraint(Sketcher.Constraint("Coincident", 50, 3, 0, 3))
sketch4.addConstraint(Sketcher.Constraint("Coincident", 52, 3, 0, 3))
sketch4.addConstraint(Sketcher.Constraint("Coincident", 54, 3, 0, 3))
sketch4.addConstraint(Sketcher.Constraint("Coincident", 56, 3, 0, 3))
sketch4.addConstraint(Sketcher.Constraint("Coincident", 58, 3, 0, 3))
sketch4.addConstraint(Sketcher.Constraint("Equal", 0, 2))
sketch4.addConstraint(Sketcher.Constraint("Equal", 1, 3))
sketch4.addConstraint(Sketcher.Constraint("Equal", 2, 4))
sketch4.addConstraint(Sketcher.Constraint("Equal", 3, 5))
sketch4.addConstraint(Sketcher.Constraint("Equal", 4, 6))
sketch4.addConstraint(Sketcher.Constraint("Equal", 5, 7))
sketch4.addConstraint(Sketcher.Constraint("Equal", 6, 8))
sketch4.addConstraint(Sketcher.Constraint("Equal", 7, 9))
sketch4.addConstraint(Sketcher.Constraint("Equal", 8, 10))
sketch4.addConstraint(Sketcher.Constraint("Equal", 9, 11))
sketch4.addConstraint(Sketcher.Constraint("Equal", 10, 12))
sketch4.addConstraint(Sketcher.Constraint("Equal", 11, 13))
sketch4.addConstraint(Sketcher.Constraint("Equal", 12, 14))
sketch4.addConstraint(Sketcher.Constraint("Equal", 13, 15))
sketch4.addConstraint(Sketcher.Constraint("Equal", 14, 16))
sketch4.addConstraint(Sketcher.Constraint("Equal", 15, 17))
sketch4.addConstraint(Sketcher.Constraint("Equal", 16, 18))
sketch4.addConstraint(Sketcher.Constraint("Equal", 17, 19))
sketch4.addConstraint(Sketcher.Constraint("Equal", 18, 20))
sketch4.addConstraint(Sketcher.Constraint("Equal", 19, 21))
sketch4.addConstraint(Sketcher.Constraint("Equal", 20, 22))
sketch4.addConstraint(Sketcher.Constraint("Equal", 21, 23))
sketch4.addConstraint(Sketcher.Constraint("Equal", 22, 24))
sketch4.addConstraint(Sketcher.Constraint("Equal", 23, 25))
sketch4.addConstraint(Sketcher.Constraint("Equal", 24, 26))
sketch4.addConstraint(Sketcher.Constraint("Equal", 25, 27))
sketch4.addConstraint(Sketcher.Constraint("Equal", 26, 28))
sketch4.addConstraint(Sketcher.Constraint("Equal", 27, 29))
sketch4.addConstraint(Sketcher.Constraint("Equal", 28, 30))
sketch4.addConstraint(Sketcher.Constraint("Equal", 29, 31))
sketch4.addConstraint(Sketcher.Constraint("Equal", 30, 32))
sketch4.addConstraint(Sketcher.Constraint("Equal", 31, 33))
sketch4.addConstraint(Sketcher.Constraint("Equal", 32, 34))
sketch4.addConstraint(Sketcher.Constraint("Equal", 33, 35))
sketch4.addConstraint(Sketcher.Constraint("Equal", 34, 36))
sketch4.addConstraint(Sketcher.Constraint("Equal", 35, 37))
sketch4.addConstraint(Sketcher.Constraint("Equal", 36, 38))
sketch4.addConstraint(Sketcher.Constraint("Equal", 37, 39))
sketch4.addConstraint(Sketcher.Constraint("Equal", 38, 40))
sketch4.addConstraint(Sketcher.Constraint("Equal", 39, 41))
sketch4.addConstraint(Sketcher.Constraint("Equal", 40, 42))
sketch4.addConstraint(Sketcher.Constraint("Equal", 41, 43))
sketch4.addConstraint(Sketcher.Constraint("Equal", 42, 44))
sketch4.addConstraint(Sketcher.Constraint("Equal", 43, 45))
sketch4.addConstraint(Sketcher.Constraint("Equal", 44, 46))
sketch4.addConstraint(Sketcher.Constraint("Equal", 45, 47))
sketch4.addConstraint(Sketcher.Constraint("Equal", 46, 48))
sketch4.addConstraint(Sketcher.Constraint("Equal", 47, 49))
sketch4.addConstraint(Sketcher.Constraint("Equal", 48, 50))
sketch4.addConstraint(Sketcher.Constraint("Equal", 49, 51))
sketch4.addConstraint(Sketcher.Constraint("Equal", 50, 52))
sketch4.addConstraint(Sketcher.Constraint("Equal", 51, 53))
sketch4.addConstraint(Sketcher.Constraint("Equal", 52, 54))
sketch4.addConstraint(Sketcher.Constraint("Equal", 53, 55))
sketch4.addConstraint(Sketcher.Constraint("Equal", 54, 56))
sketch4.addConstraint(Sketcher.Constraint("Equal", 55, 57))
sketch4.addConstraint(Sketcher.Constraint("Equal", 56, 58))
sketch4.addConstraint(Sketcher.Constraint("Equal", 57, 59))
sketch4.addConstraint(Sketcher.Constraint("Symmetric", 29, 3, 33, 3, -1))
sketch4.addConstraint(Sketcher.Constraint("Symmetric", 27, 3, 35, 3, -1))
sketch4.addConstraint(Sketcher.Constraint("Symmetric", 25, 3, 37, 3, -1))
sketch4.addConstraint(Sketcher.Constraint("Symmetric", 23, 3, 39, 3, -1))
sketch4.addConstraint(Sketcher.Constraint("Symmetric", 21, 3, 41, 3, -1))
sketch4.addConstraint(Sketcher.Constraint("Symmetric", 19, 3, 43, 3, -1))
sketch4.addConstraint(Sketcher.Constraint("Symmetric", 17, 3, 45, 3, -1))
sketch4.addConstraint(Sketcher.Constraint("Symmetric", 15, 3, 47, 3, -1))
sketch4.addConstraint(Sketcher.Constraint("Symmetric", 13, 3, 49, 3, -1))
sketch4.addConstraint(Sketcher.Constraint("Symmetric", 11, 3, 51, 3, -1))
sketch4.addConstraint(Sketcher.Constraint("Symmetric", 9, 3, 53, 3, -1))
sketch4.addConstraint(Sketcher.Constraint("Symmetric", 7, 3, 55, 3, -1))
sketch4.addConstraint(Sketcher.Constraint("Symmetric", 5, 3, 57, 3, -1))
sketch4.addConstraint(Sketcher.Constraint("Symmetric", 3, 3, 59, 3, -1))
sketch4.addConstraint(Sketcher.Constraint("Symmetric", 0, 1, 1, 1, -1))
sketch4.addConstraint(Sketcher.Constraint("PointOnObject", 31, 3, -1))
sketch4.addConstraint(Sketcher.Constraint("Horizontal", 15, 3, 17, 3))
sketch4.addConstraint(Sketcher.Constraint("Horizontal", 13, 3, 19, 3))
sketch4.addConstraint(Sketcher.Constraint("Horizontal", 11, 3, 21, 3))
sketch4.addConstraint(Sketcher.Constraint("Horizontal", 9, 3, 23, 3))
sketch4.addConstraint(Sketcher.Constraint("Horizontal", 7, 3, 25, 3))
sketch4.addConstraint(Sketcher.Constraint("Horizontal", 5, 3, 27, 3))
sketch4.addConstraint(Sketcher.Constraint("Horizontal", 3, 3, 29, 3))
sketch4.addConstraint(Sketcher.Constraint("Horizontal", 15, 1, 16, 1))
sketch4.addConstraint(Sketcher.Constraint("Horizontal", 13, 1, 18, 1))
sketch4.addConstraint(Sketcher.Constraint("Horizontal", 11, 1, 20, 1))
sketch4.addConstraint(Sketcher.Constraint("Horizontal", 9, 1, 22, 1))
sketch4.addConstraint(Sketcher.Constraint("Horizontal", 7, 1, 24, 1))
sketch4.addConstraint(Sketcher.Constraint("Horizontal", 5, 1, 26, 1))
sketch4.addConstraint(Sketcher.Constraint("Horizontal", 3, 1, 28, 1))
sketch4.addConstraint(Sketcher.Constraint("Horizontal", 1, 1, 30, 1))
sketch4.addConstraint(Sketcher.Constraint("Radius", 0, 3.5))
sketch4.addConstraint(Sketcher.Constraint("Radius", 1, 0.275))
sketch4.addConstraint(Sketcher.Constraint("DistanceX", -1, 1, 11, 3, 5.3))
sketch4.addConstraint(Sketcher.Constraint("DistanceX", -1, 1, 21, 3, 1.8))
sketch4.addConstraint(Sketcher.Constraint("DistanceX", -1, 1, 1, 3, 7.05))
sketch4.addConstraint(Sketcher.Constraint("DistanceY", 3, 3, -1, 1, 0.727691))
sketch4.addConstraint(Sketcher.Constraint("DistanceX", -1, 1, 5, 3, 6.747409))
sketch4.addConstraint(Sketcher.Constraint("DistanceY", 5, 3, -1, 1, 1.423578))
sketch4.addConstraint(Sketcher.Constraint("DistanceX", -1, 1, 7, 3, 6.381559))
sketch4.addConstraint(Sketcher.Constraint("DistanceY", 7, 3, -1, 1, 2.057248))
sketch4.addConstraint(Sketcher.Constraint("DistanceY", 11, 3, -1, 1, 3.031089))
sketch4.addConstraint(Sketcher.Constraint("DistanceX", -1, 1, 13, 3, 4.631559))
sketch4.addConstraint(Sketcher.Constraint("DistanceX", -1, 1, 15, 3, 3.91585))
sketch4.addConstraint(Sketcher.Constraint("DistanceX", -1, 1, 3, 1, 7.020081))
sketch4.addConstraint(Sketcher.Constraint("DistanceX", -1, 1, 8, 1, 5.680521))
sketch4.addConstraint(Sketcher.Constraint("DistanceY", 9, 1, -1, 1, 2.409109))
sketch4.addConstraint(Sketcher.Constraint("DistanceX", -1, 1, 13, 1, 4.88956))
sketch4.addConstraint(Sketcher.Constraint("DistanceY", 15, 1, -1, 1, 3.441359))
pad2 = doc.addObject("PartDesign::Pad", "Pad001")
body.addObject(pad2)
pad2.Profile = sketch4
pad2.Type = "TwoLengths"
pad2.Length = 3
pad2.Length2 = 3

doc.recompute()
